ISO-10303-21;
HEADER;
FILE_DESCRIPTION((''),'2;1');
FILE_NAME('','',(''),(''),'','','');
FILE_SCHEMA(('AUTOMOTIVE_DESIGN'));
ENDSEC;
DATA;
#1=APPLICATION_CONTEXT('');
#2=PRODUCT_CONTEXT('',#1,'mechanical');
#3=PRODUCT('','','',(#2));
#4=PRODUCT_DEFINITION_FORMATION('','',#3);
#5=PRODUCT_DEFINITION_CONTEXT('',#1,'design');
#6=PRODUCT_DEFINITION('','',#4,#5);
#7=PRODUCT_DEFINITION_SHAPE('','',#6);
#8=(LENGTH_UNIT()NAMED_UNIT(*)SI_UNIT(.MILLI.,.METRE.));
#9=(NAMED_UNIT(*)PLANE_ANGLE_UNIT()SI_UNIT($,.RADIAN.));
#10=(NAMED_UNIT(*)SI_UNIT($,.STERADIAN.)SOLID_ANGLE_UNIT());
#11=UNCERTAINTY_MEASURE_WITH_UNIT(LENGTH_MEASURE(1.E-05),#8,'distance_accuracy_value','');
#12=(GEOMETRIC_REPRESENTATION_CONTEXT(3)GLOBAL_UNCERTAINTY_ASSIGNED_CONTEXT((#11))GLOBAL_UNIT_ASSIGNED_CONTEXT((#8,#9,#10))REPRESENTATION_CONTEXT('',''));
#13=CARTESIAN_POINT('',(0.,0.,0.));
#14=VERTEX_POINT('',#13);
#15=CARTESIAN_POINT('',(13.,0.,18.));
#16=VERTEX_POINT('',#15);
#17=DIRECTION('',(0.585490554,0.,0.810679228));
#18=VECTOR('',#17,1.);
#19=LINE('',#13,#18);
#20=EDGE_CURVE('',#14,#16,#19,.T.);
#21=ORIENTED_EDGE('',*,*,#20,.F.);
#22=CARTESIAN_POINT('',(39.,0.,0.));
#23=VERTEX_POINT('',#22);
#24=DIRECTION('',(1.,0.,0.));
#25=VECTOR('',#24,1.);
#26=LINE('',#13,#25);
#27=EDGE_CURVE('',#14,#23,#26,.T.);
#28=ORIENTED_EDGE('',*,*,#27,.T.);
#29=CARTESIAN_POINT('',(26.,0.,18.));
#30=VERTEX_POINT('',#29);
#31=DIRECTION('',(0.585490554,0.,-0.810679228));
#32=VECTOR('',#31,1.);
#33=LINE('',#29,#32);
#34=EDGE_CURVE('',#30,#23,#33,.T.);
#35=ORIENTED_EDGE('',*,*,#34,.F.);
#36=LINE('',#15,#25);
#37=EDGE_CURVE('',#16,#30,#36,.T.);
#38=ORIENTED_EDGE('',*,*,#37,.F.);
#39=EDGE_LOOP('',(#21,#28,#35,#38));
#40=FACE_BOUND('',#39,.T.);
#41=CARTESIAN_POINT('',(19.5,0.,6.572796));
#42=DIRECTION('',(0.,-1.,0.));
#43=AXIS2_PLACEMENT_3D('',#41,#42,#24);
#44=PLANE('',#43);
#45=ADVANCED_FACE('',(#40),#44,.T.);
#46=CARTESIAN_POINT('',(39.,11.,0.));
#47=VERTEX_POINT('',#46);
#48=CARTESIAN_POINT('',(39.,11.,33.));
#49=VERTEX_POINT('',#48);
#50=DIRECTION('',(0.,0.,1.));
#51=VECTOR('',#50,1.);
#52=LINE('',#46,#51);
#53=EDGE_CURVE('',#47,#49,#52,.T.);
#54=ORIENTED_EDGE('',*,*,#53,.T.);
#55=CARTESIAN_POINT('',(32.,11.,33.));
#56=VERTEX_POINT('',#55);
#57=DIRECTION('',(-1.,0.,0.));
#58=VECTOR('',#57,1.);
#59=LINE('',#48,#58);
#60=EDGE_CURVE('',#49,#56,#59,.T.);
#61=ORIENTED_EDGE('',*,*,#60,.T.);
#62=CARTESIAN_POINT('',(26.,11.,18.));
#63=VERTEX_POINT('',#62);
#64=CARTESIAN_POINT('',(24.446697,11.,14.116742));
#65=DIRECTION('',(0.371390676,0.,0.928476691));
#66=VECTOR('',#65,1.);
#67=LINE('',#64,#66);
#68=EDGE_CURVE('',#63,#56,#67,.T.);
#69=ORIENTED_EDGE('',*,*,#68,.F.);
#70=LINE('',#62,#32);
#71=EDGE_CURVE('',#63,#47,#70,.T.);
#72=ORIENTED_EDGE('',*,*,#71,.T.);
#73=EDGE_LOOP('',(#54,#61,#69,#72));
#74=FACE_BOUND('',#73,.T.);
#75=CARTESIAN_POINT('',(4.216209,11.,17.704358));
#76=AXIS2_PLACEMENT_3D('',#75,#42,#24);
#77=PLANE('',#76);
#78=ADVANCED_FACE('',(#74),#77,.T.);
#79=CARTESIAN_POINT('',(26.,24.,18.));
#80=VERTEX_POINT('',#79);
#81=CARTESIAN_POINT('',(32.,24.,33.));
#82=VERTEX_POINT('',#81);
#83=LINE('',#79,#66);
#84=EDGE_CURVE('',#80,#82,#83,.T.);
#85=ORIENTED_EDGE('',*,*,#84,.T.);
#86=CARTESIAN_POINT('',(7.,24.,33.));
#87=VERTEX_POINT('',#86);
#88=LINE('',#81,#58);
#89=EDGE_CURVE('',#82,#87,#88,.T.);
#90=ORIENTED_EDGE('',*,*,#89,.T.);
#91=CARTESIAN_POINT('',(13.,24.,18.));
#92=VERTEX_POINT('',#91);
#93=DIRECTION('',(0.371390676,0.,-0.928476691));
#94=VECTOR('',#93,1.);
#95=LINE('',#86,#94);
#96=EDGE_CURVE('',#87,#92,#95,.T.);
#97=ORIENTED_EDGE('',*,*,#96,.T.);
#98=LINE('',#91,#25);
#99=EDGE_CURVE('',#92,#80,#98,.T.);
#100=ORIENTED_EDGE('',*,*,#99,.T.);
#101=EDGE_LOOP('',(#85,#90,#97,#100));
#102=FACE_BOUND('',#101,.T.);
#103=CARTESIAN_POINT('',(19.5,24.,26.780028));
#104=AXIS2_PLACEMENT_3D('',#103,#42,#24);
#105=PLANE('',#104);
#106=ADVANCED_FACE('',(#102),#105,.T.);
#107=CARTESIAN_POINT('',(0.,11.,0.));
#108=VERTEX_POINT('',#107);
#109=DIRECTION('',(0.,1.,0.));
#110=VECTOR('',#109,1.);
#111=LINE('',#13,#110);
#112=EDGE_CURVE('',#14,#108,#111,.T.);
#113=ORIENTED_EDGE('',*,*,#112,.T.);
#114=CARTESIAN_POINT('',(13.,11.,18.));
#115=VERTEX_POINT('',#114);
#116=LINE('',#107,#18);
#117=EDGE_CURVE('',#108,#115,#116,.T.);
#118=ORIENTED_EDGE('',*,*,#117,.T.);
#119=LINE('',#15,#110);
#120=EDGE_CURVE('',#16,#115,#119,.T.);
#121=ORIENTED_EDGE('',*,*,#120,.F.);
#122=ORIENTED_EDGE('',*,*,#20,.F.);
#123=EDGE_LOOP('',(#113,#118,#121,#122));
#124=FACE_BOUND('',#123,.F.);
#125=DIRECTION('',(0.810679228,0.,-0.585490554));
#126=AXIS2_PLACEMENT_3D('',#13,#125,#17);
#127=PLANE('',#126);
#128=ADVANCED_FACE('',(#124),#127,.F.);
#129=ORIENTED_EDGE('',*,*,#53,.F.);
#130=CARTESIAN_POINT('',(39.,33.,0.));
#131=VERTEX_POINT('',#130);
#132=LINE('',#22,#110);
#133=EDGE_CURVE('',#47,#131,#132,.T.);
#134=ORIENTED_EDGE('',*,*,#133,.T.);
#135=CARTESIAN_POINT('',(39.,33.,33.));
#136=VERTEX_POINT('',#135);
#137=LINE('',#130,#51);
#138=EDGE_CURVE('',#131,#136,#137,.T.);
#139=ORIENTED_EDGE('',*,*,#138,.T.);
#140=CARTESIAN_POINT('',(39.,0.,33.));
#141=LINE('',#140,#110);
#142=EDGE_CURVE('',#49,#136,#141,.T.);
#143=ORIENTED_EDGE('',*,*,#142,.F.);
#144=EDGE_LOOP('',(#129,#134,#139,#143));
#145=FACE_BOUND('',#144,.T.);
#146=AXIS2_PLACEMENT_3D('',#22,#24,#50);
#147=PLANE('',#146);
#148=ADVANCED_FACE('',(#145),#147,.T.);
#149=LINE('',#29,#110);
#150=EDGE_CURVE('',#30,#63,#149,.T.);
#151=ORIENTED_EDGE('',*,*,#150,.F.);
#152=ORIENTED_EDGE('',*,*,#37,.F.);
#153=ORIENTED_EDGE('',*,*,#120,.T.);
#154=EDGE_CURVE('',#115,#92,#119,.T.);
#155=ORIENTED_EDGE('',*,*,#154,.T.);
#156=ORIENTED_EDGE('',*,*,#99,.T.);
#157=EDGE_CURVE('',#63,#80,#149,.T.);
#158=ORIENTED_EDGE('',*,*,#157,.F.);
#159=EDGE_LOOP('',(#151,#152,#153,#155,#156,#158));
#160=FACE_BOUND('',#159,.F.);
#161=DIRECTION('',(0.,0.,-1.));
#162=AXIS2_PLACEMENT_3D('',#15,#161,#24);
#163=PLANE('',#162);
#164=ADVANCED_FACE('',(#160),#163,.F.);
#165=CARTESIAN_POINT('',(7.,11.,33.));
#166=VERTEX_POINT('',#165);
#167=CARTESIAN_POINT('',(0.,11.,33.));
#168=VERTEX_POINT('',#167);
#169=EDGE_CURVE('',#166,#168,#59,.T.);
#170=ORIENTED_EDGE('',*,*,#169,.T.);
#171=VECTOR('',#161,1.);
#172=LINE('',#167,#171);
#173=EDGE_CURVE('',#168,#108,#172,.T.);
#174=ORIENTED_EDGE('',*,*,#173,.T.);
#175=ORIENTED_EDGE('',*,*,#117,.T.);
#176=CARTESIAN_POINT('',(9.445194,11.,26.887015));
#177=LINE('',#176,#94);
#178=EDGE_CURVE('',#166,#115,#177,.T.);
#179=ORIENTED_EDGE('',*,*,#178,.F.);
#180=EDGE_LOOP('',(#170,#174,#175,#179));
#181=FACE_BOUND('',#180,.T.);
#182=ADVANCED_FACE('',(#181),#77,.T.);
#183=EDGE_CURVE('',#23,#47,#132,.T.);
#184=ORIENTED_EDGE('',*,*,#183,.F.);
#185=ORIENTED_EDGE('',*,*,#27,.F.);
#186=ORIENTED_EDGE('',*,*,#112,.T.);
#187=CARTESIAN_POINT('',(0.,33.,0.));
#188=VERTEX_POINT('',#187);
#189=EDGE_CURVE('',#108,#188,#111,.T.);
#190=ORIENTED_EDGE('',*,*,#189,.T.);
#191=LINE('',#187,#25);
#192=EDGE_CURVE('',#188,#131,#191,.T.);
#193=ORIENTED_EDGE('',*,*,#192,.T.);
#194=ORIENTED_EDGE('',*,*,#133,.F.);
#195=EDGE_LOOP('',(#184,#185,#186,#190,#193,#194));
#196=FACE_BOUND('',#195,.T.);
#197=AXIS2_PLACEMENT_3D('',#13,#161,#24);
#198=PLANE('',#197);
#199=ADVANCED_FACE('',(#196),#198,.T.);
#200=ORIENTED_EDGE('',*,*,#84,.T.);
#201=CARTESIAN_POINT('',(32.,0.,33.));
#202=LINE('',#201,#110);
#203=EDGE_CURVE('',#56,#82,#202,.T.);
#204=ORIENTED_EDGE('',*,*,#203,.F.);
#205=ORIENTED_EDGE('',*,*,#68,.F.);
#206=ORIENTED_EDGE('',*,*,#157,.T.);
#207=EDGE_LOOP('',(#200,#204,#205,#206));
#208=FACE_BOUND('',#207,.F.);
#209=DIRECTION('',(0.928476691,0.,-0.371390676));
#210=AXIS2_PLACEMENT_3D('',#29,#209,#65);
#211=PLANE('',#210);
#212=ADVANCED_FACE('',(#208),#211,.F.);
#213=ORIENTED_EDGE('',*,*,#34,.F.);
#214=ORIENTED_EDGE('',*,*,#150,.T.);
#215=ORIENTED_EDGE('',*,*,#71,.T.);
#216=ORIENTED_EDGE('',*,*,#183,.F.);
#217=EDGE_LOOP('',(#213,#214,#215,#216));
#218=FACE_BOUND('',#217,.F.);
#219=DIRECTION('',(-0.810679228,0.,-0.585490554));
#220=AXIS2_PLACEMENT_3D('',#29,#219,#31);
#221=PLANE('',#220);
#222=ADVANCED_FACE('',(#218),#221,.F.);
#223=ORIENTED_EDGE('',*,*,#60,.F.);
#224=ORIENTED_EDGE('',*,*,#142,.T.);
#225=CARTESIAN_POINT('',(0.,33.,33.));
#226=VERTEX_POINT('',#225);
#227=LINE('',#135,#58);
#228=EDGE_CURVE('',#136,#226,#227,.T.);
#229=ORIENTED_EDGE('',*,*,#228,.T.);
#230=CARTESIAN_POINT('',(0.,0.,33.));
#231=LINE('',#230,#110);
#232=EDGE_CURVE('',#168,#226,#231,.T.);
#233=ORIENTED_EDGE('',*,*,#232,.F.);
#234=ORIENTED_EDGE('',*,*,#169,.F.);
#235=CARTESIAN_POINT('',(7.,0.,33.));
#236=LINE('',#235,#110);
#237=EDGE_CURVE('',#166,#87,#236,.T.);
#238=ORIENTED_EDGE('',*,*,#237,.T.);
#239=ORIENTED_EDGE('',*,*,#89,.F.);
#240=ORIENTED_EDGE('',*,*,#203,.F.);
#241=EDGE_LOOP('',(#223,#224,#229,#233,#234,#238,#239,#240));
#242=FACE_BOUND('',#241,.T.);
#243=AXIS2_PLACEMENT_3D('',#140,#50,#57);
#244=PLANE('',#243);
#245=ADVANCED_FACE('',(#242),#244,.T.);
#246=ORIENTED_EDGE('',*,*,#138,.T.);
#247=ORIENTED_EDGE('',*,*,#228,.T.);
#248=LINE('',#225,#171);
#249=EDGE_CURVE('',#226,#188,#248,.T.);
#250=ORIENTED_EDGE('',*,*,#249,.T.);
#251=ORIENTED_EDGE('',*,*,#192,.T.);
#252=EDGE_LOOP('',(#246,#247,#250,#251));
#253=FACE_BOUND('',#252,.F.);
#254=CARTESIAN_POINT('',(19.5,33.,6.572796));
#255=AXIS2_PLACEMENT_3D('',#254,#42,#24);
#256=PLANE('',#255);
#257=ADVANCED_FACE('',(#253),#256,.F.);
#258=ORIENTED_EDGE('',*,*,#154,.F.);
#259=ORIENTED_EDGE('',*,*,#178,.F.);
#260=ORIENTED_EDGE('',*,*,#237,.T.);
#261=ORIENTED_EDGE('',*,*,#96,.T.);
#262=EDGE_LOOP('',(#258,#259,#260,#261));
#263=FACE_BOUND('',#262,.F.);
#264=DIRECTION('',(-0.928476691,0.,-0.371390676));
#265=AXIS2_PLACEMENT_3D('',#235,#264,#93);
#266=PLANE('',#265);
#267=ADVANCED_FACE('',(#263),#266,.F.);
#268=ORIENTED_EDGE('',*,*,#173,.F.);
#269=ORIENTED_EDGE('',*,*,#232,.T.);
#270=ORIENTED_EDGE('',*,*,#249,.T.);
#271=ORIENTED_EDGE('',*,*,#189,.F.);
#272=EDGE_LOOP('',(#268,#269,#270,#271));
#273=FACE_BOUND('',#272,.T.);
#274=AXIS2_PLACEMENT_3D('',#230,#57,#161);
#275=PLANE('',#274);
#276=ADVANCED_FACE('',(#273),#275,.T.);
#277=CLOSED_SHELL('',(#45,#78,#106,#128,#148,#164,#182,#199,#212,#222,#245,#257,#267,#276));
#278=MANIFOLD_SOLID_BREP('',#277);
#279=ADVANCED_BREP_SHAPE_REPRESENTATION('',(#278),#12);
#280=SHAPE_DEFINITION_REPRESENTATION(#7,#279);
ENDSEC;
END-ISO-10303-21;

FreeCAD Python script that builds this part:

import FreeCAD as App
import Part
import Sketcher
from FreeCAD import Vector
Q = App.Units.Quantity


def add_polygon(sketch, points):
    """Adds a closed chain of lines whose ends are joined by coincident constraints."""
    first, n = sketch.GeometryCount, len(points)
    for a, b in zip(points, points[1:] + points[:1]):
        sketch.addGeometry(Part.LineSegment(App.Vector(*a, 0), App.Vector(*b, 0)), False)
    for i in range(n):
        sketch.addConstraint(Sketcher.Constraint("Coincident", first + i, 2, first + (i + 1) % n, 1))

doc = App.newDocument("Part")
params = doc.addObject("Spreadsheet::Sheet", "Params")
for row, (alias, value) in enumerate([
    ("sketch1_width", "39 mm"),
    ("sketch1_height", "33 mm"),
    ("pad1_length", "33 mm"),
    ("sketch2_width", "13 mm"),
    ("sketch2_width2", "39 mm"),
    ("sketch2_height", "33 mm"),
    ("pocket1_length", "11 mm"),
    ("sketch3_width", "13 mm"),
    ("sketch3_width2", "25 mm"),
    ("pocket2_length", "24 mm"),
], start=1):
    params.set(f"A{row}", alias)
    params.set(f"B{row}", "=" + value)
    params.setAlias(f"B{row}", alias)

body = doc.addObject("PartDesign::Body", "Body")

# Sketch on XZ plane
sketch1 = body.newObject("Sketcher::SketchObject", "Sketch")
sketch1.AttachmentSupport = (doc.getObject("XZ_Plane"), [""])
sketch1.MapMode = "FlatFace"
add_polygon(sketch1, [(0, 0), (39, 0), (39, 33), (0, 33)])  # lines 0-3
sketch1.addConstraint([
    Sketcher.Constraint("Horizontal", 0),
    Sketcher.Constraint("Vertical", 1),
    Sketcher.Constraint("Horizontal", 2),
    Sketcher.Constraint("Vertical", 3),
    Sketcher.Constraint("Coincident", 3, 2, -1, 1),
    Sketcher.Constraint("DistanceX", 0, 1, 0, 2, Q("39 mm")),
    Sketcher.Constraint("DistanceY", 1, 1, 1, 2, Q("33 mm")),
])
sketch1.setExpression("Constraints[9]", "Params.sketch1_width")
sketch1.setExpression("Constraints[10]", "Params.sketch1_height")
pad1 = body.newObject("PartDesign::Pad", "Pad")
pad1.Profile = sketch1
pad1.setExpression("Length", "Params.pad1_length")
pad1.Reversed = True

# Sketch on XZ plane
sketch2 = body.newObject("Sketcher::SketchObject", "Sketch001")
sketch2.AttachmentSupport = (doc.getObject("XZ_Plane"), [""])
sketch2.MapMode = "FlatFace"
add_polygon(sketch2, [(0, 33), (0, 0), (13, 18), (26, 18), (39, 0), (39, 33)])  # lines 0-5
sketch2.addConstraint([
    Sketcher.Constraint("Vertical", 0),
    Sketcher.Constraint("Horizontal", 2),
    Sketcher.Constraint("Vertical", 4),
    Sketcher.Constraint("Horizontal", 5),
    Sketcher.Constraint("Coincident", 0, 2, -1, 1),
    Sketcher.Constraint("PointOnObject", 3, 2, -1),
    Sketcher.Constraint("Equal", 1, 3),
    Sketcher.Constraint("DistanceX", 2, 1, 2, 2, Q("13 mm")),
    Sketcher.Constraint("DistanceX", 5, 2, 5, 1, Q("39 mm")),
    Sketcher.Constraint("DistanceY", 0, 2, 0, 1, Q("33 mm")),
    Sketcher.Constraint("DistanceY", -1, 1, 1, 2, Q("18 mm")),
])
sketch2.setExpression("Constraints[13]", "Params.sketch2_width")
sketch2.setExpression("Constraints[14]", "Params.sketch2_width2")
sketch2.setExpression("Constraints[15]", "Params.sketch2_height")
pocket1 = body.newObject("PartDesign::Pocket", "Pocket")
pocket1.Profile = sketch2
pocket1.setExpression("Length", "Params.pocket1_length")

# Sketch on XZ plane
sketch3 = body.newObject("Sketcher::SketchObject", "Sketch002")
sketch3.AttachmentSupport = (doc.getObject("XZ_Plane"), [""])
sketch3.MapMode = "FlatFace"
add_polygon(sketch3, [(7, 33), (13, 18), (26, 18), (32, 33)])  # lines 0-3
sketch3.addConstraint([
    Sketcher.Constraint("Horizontal", 1),
    Sketcher.Constraint("Horizontal", 3),
    Sketcher.Constraint("Equal", 0, 2),
    Sketcher.Constraint("DistanceX", 1, 1, 1, 2, Q("13 mm")),
    Sketcher.Constraint("DistanceX", 3, 2, 3, 1, Q("25 mm")),
    Sketcher.Constraint("DistanceX", -1, 1, 0, 2, Q("13 mm")),
    Sketcher.Constraint("DistanceY", -1, 1, 0, 2, Q("18 mm")),
    Sketcher.Constraint("DistanceY", -1, 1, 2, 2, Q("33 mm")),
])
sketch3.setExpression("Constraints[7]", "Params.sketch3_width")
sketch3.setExpression("Constraints[8]", "Params.sketch3_width2")
pocket2 = body.newObject("PartDesign::Pocket", "Pocket001")
pocket2.Profile = sketch3
pocket2.setExpression("Length", "Params.pocket2_length")

doc.recompute()
